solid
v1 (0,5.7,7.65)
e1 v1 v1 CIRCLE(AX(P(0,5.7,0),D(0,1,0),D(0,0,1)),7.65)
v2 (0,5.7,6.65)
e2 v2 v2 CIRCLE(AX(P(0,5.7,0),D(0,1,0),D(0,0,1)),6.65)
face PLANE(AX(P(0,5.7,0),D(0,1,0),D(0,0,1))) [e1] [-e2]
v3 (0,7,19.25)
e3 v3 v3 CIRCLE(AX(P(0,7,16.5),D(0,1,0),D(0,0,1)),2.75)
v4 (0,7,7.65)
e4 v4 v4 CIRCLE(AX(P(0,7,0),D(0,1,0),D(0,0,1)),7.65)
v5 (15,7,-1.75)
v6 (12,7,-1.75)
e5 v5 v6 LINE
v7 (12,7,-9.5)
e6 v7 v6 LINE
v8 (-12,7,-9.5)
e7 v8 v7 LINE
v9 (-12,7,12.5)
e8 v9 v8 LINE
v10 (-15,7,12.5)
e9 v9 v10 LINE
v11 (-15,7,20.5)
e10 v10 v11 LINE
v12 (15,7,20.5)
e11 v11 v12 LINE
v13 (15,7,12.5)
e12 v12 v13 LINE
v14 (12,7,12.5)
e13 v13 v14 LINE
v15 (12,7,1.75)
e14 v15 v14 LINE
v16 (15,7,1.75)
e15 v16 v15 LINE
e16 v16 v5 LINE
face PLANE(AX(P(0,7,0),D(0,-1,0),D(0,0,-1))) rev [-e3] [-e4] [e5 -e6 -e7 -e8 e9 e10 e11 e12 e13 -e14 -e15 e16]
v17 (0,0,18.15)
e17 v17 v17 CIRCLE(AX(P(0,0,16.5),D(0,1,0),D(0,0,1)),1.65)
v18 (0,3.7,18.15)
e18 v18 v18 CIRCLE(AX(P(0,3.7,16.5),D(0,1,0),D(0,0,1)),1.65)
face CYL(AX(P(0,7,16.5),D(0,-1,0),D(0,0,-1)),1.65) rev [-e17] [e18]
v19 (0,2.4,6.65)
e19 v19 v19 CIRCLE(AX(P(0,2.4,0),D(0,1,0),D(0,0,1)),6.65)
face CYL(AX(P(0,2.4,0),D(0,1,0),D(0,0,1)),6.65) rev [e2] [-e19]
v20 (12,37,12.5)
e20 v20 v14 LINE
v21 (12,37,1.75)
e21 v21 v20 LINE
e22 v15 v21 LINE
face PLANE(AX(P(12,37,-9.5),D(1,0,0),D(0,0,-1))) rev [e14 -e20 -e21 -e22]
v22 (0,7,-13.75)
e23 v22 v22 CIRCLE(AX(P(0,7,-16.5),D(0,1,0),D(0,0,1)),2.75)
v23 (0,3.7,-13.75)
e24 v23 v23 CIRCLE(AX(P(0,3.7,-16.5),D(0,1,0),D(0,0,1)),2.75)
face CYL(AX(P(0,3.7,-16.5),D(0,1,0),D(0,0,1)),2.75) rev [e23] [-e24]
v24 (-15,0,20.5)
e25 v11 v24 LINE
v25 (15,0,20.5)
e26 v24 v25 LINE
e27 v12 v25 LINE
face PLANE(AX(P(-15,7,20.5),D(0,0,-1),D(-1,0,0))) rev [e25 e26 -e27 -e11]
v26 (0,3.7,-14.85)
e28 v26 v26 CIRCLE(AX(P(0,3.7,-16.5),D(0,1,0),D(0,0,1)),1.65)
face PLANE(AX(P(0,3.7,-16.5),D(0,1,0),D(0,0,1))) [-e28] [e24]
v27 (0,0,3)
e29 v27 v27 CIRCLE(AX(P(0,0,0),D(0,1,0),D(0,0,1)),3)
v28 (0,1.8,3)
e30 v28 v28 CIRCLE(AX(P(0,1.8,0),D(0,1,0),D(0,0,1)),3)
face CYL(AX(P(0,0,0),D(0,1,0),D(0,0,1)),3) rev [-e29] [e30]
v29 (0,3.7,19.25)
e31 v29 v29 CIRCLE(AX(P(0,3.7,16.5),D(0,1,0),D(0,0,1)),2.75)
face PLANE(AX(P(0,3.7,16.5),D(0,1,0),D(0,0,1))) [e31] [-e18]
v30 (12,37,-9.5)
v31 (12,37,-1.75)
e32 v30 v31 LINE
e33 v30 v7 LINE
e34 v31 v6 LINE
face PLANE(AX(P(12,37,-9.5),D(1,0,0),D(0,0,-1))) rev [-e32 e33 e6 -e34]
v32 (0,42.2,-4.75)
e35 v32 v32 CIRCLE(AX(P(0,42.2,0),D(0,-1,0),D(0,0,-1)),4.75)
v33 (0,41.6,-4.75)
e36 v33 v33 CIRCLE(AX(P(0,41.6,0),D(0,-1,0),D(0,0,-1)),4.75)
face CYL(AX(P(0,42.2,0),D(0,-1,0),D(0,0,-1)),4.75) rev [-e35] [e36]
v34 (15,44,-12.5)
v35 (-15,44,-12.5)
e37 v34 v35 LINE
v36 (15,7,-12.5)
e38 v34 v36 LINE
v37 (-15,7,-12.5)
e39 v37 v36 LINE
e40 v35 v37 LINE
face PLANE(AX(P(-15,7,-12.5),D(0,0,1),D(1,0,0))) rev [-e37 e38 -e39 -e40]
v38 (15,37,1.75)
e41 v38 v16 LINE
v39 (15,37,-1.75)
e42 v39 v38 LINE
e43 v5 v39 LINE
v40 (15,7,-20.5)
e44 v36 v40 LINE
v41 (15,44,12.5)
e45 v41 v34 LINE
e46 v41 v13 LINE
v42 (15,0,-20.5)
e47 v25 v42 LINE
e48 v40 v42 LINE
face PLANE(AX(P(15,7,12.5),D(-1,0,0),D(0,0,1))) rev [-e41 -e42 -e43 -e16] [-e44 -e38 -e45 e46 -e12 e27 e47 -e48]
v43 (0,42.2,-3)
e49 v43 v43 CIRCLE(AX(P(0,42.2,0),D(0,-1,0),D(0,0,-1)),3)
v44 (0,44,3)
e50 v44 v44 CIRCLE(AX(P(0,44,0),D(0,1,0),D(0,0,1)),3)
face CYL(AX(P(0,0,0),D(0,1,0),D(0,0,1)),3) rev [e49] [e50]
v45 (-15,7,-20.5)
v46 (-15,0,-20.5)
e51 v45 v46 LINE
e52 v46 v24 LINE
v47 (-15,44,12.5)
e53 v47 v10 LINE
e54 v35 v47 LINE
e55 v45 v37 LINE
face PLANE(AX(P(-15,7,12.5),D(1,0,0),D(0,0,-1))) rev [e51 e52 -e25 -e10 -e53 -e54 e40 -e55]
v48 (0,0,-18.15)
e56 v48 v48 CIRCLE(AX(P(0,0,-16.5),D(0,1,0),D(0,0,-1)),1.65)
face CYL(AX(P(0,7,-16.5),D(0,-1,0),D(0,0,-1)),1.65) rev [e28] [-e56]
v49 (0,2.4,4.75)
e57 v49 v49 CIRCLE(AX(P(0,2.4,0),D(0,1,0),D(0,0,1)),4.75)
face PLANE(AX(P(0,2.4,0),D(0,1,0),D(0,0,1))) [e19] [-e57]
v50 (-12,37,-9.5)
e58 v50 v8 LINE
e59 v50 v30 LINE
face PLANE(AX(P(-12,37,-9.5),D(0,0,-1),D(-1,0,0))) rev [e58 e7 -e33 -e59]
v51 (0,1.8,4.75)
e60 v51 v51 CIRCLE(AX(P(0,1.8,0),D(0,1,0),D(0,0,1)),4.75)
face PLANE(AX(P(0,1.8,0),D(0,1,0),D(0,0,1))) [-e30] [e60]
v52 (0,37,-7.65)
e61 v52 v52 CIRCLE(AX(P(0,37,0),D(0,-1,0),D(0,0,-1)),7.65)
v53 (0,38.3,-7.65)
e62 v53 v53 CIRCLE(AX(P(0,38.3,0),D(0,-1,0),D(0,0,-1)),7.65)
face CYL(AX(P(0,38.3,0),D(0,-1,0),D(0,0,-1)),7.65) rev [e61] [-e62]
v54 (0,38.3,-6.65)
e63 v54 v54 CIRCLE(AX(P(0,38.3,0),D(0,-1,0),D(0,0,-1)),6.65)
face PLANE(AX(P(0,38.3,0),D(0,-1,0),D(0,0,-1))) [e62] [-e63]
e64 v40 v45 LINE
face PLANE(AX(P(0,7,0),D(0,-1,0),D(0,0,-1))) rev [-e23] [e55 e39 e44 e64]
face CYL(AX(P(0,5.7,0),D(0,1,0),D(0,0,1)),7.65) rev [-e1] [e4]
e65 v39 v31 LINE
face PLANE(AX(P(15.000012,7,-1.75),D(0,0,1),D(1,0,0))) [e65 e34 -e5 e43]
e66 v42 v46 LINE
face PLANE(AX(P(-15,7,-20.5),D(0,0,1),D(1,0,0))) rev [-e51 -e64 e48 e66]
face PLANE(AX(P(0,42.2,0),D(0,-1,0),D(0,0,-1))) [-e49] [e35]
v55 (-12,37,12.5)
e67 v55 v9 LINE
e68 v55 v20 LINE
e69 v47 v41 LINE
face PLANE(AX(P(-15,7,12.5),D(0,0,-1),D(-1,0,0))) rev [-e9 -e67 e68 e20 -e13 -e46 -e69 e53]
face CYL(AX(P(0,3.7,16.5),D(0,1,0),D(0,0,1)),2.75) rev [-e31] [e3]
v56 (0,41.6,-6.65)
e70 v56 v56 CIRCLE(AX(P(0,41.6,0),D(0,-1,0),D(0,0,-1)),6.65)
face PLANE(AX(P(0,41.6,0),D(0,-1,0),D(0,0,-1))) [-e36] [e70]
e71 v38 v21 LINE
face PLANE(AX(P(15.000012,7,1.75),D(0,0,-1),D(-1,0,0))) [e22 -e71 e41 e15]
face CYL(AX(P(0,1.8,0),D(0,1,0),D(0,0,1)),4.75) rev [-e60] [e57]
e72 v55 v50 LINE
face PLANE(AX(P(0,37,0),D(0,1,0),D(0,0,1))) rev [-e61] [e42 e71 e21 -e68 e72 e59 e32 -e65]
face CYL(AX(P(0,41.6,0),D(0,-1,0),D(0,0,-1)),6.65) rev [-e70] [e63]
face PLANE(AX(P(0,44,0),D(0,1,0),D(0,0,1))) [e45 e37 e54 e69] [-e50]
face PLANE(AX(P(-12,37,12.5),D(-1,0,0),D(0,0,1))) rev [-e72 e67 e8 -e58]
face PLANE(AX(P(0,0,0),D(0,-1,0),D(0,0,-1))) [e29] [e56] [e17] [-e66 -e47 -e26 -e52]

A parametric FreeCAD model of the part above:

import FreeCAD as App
import Part
import Sketcher
Q = App.Units.Quantity

doc = App.newDocument("Part")
body = doc.addObject("PartDesign::Body", "Body")

sketch1 = doc.addObject("Sketcher::SketchObject", "Sketch")
body.addObject(sketch1)
sketch1.AttachmentSupport = (doc.XZ_Plane, [""])
sketch1.MapMode = "FlatFace"
sketch1.addGeometry([
    Part.LineSegment(App.Vector(-15, -12, 0), App.Vector(-15, 12, 0)),
    Part.LineSegment(App.Vector(-15, 12, 0), App.Vector(15, 12, 0)),
    Part.LineSegment(App.Vector(15, 12, 0), App.Vector(15, -12, 0)),
    Part.LineSegment(App.Vector(15, -12, 0), App.Vector(-15, -12, 0)),
], False)
sketch1.addConstraint([
    Sketcher.Constraint("Coincident", 0, 2, 1, 1),
    Sketcher.Constraint("Coincident", 1, 2, 2, 1),
    Sketcher.Constraint("Coincident", 2, 2, 3, 1),
    Sketcher.Constraint("Coincident", 3, 2, 0, 1),
    Sketcher.Constraint("Vertical", 0),
    Sketcher.Constraint("Horizontal", 1),
    Sketcher.Constraint("Vertical", 2),
    Sketcher.Constraint("Horizontal", 3),
    Sketcher.Constraint("Symmetric", 0, 2, 2, 2, -1, 1),
    Sketcher.Constraint("DistanceX", 1, 1, 1, 2, Q("30 mm")),
    Sketcher.Constraint("DistanceY", 0, 1, 0, 2, Q("25 mm")),
])
pad1 = doc.addObject("PartDesign::Pad", "Pad")
body.addObject(pad1)
pad1.Profile = sketch1
pad1.Length = 7
pad1.Reversed = True

sketch2 = doc.addObject("Sketcher::SketchObject", "Sketch001")
body.addObject(sketch2)
sketch2.AttachmentSupport = (doc.XZ_Plane, [""])
sketch2.MapMode = "FlatFace"
sketch2.AttachmentOffset = App.Placement(App.Vector(0, 0, -7), App.Rotation())
sketch2.addGeometry([
    Part.LineSegment(App.Vector(-15, 12.5, 0), App.Vector(-12, 12.5, 0)),
    Part.LineSegment(App.Vector(-12, 12.5, 0), App.Vector(-12, -9.5, 0)),
    Part.LineSegment(App.Vector(-12, -9.5, 0), App.Vector(12, -9.5, 0)),
    Part.LineSegment(App.Vector(12, -9.5, 0), App.Vector(12, 12.5, 0)),
    Part.LineSegment(App.Vector(12, 12.5, 0), App.Vector(15, 12.5, 0)),
    Part.LineSegment(App.Vector(15, 12.5, 0), App.Vector(15, -12.5, 0)),
    Part.LineSegment(App.Vector(15, -12.5, 0), App.Vector(-15, -12.5, 0)),
    Part.LineSegment(App.Vector(-15, -12.5, 0), App.Vector(-15, 12.5, 0)),
], False)
sketch2.addConstraint([
    Sketcher.Constraint("Coincident", 0, 2, 1, 1),
    Sketcher.Constraint("Coincident", 1, 2, 2, 1),
    Sketcher.Constraint("Coincident", 2, 2, 3, 1),
    Sketcher.Constraint("Coincident", 3, 2, 4, 1),
    Sketcher.Constraint("Coincident", 4, 2, 5, 1),
    Sketcher.Constraint("Coincident", 5, 2, 6, 1),
    Sketcher.Constraint("Coincident", 6, 2, 7, 1),
    Sketcher.Constraint("Coincident", 7, 2, 0, 1),
    Sketcher.Constraint("Horizontal", 0),
    Sketcher.Constraint("Vertical", 1),
    Sketcher.Constraint("Horizontal", 2),
    Sketcher.Constraint("Vertical", 3),
    Sketcher.Constraint("Horizontal", 4),
    Sketcher.Constraint("Vertical", 5),
    Sketcher.Constraint("Horizontal", 6),
    Sketcher.Constraint("Vertical", 7),
    Sketcher.Constraint("Symmetric", 4, 2, 6, 2, -1, 1),
    Sketcher.Constraint("Symmetric", 0, 2, 3, 2, -2),
    Sketcher.Constraint("DistanceX", 0, 1, 0, 2, Q("3 mm")),
    Sketcher.Constraint("DistanceX", 2, 1, 2, 2, Q("24 mm")),
    Sketcher.Constraint("DistanceY", 1, 2, 1, 1, Q("22 mm")),
    Sketcher.Constraint("DistanceY", 5, 2, 5, 1, Q("25 mm")),
])
pad2 = doc.addObject("PartDesign::Pad", "Pad001")
body.addObject(pad2)
pad2.Profile = sketch2
pad2.Length = 30
pad2.Reversed = True

sketch3 = doc.addObject("Sketcher::SketchObject", "Sketch002")
body.addObject(sketch3)
sketch3.AttachmentSupport = (doc.XZ_Plane, [""])
sketch3.MapMode = "FlatFace"
sketch3.AttachmentOffset = App.Placement(App.Vector(0, 0, -37), App.Rotation())
sketch3.addGeometry([
    Part.LineSegment(App.Vector(-15, -12, 0), App.Vector(-15, 12, 0)),
    Part.LineSegment(App.Vector(-15, 12, 0), App.Vector(15, 12, 0)),
    Part.LineSegment(App.Vector(15, 12, 0), App.Vector(15, -12, 0)),
    Part.LineSegment(App.Vector(15, -12, 0), App.Vector(-15, -12, 0)),
], False)
sketch3.addConstraint([
    Sketcher.Constraint("Coincident", 0, 2, 1, 1),
    Sketcher.Constraint("Coincident", 1, 2, 2, 1),
    Sketcher.Constraint("Coincident", 2, 2, 3, 1),
    Sketcher.Constraint("Coincident", 3, 2, 0, 1),
    Sketcher.Constraint("Vertical", 0),
    Sketcher.Constraint("Horizontal", 1),
    Sketcher.Constraint("Vertical", 2),
    Sketcher.Constraint("Horizontal", 3),
    Sketcher.Constraint("Symmetric", 0, 2, 2, 2, -1, 1),
    Sketcher.Constraint("DistanceX", 1, 1, 1, 2, Q("30 mm")),
    Sketcher.Constraint("DistanceY", 0, 1, 0, 2, Q("25 mm")),
])
pad3 = doc.addObject("PartDesign::Pad", "Pad002")
body.addObject(pad3)
pad3.Profile = sketch3
pad3.Length = 7
pad3.Reversed = True

sketch4 = doc.addObject("Sketcher::SketchObject", "Sketch003")
body.addObject(sketch4)
sketch4.AttachmentSupport = (doc.XZ_Plane, [""])
sketch4.MapMode = "FlatFace"
sketch4.AttachmentOffset = App.Placement(App.Vector(0, 0, -7), App.Rotation())
sketch4.addGeometry(Part.Circle(App.Vector(0, 0, 0), App.Vector(0, 0, 1), 8), False)
sketch4.addConstraint([
    Sketcher.Constraint("Coincident", 0, 3, -1, 1),
    Sketcher.Constraint("Diameter", 0, Q("15.3 mm")),
])
pocket1 = doc.addObject("PartDesign::Pocket", "Pocket")
body.addObject(pocket1)
pocket1.Profile = sketch4
pocket1.Length = 1.3
pocket1.Reversed = True

sketch5 = doc.addObject("Sketcher::SketchObject", "Sketch004")
body.addObject(sketch5)
sketch5.AttachmentSupport = (doc.XZ_Plane, [""])
sketch5.MapMode = "FlatFace"
sketch5.AttachmentOffset = App.Placement(App.Vector(0, 0, -38.3), App.Rotation())
sketch5.addGeometry(Part.Circle(App.Vector(0, 0, 0), App.Vector(0, 0, 1), 8), False)
sketch5.addConstraint([
    Sketcher.Constraint("Coincident", 0, 3, -1, 1),
    Sketcher.Constraint("Diameter", 0, Q("15.3 mm")),
])
pocket2 = doc.addObject("PartDesign::Pocket", "Pocket001")
body.addObject(pocket2)
pocket2.Profile = sketch5
pocket2.Length = 1.3
pocket2.Reversed = True

sketch6 = doc.addObject("Sketcher::SketchObject", "Sketch005")
body.addObject(sketch6)
sketch6.AttachmentSupport = (doc.XZ_Plane, [""])
sketch6.MapMode = "FlatFace"
sketch6.AttachmentOffset = App.Placement(App.Vector(0, 0, -5.7), App.Rotation())
sketch6.addGeometry(Part.Circle(App.Vector(0, 0, 0), App.Vector(0, 0, 1), 7), False)
sketch6.addConstraint([
    Sketcher.Constraint("Coincident", 0, 3, -1, 1),
    Sketcher.Constraint("Diameter", 0, Q("13.3 mm")),
])
pocket3 = doc.addObject("PartDesign::Pocket", "Pocket002")
body.addObject(pocket3)
pocket3.Profile = sketch6
pocket3.Length = 3.3
pocket3.Reversed = True

sketch7 = doc.addObject("Sketcher::SketchObject", "Sketch006")
body.addObject(sketch7)
sketch7.AttachmentSupport = (doc.XZ_Plane, [""])
sketch7.MapMode = "FlatFace"
sketch7.AttachmentOffset = App.Placement(App.Vector(0, 0, -41.6), App.Rotation())
sketch7.addGeometry(Part.Circle(App.Vector(0, 0, 0), App.Vector(0, 0, 1), 7), False)
sketch7.addConstraint([
    Sketcher.Constraint("Coincident", 0, 3, -1, 1),
    Sketcher.Constraint("Diameter", 0, Q("13.3 mm")),
])
pocket4 = doc.addObject("PartDesign::Pocket", "Pocket003")
body.addObject(pocket4)
pocket4.Profile = sketch7
pocket4.Length = 3.3
pocket4.Reversed = True

sketch8 = doc.addObject("Sketcher::SketchObject", "Sketch007")
body.addObject(sketch8)
sketch8.AttachmentSupport = (doc.XZ_Plane, [""])
sketch8.MapMode = "FlatFace"
sketch8.AttachmentOffset = App.Placement(App.Vector(0, 0, -2.4), App.Rotation())
sketch8.addGeometry(Part.Circle(App.Vector(0, 0, 0), App.Vector(0, 0, 1), 4.8), False)
sketch8.addConstraint([
    Sketcher.Constraint("Coincident", 0, 3, -1, 1),
    Sketcher.Constraint("Diameter", 0, Q("9.5 mm")),
])
pocket5 = doc.addObject("PartDesign::Pocket", "Pocket004")
body.addObject(pocket5)
pocket5.Profile = sketch8
pocket5.Length = 0.6
pocket5.Reversed = True

sketch9 = doc.addObject("Sketcher::SketchObject", "Sketch008")
body.addObject(sketch9)
sketch9.AttachmentSupport = (doc.XZ_Plane, [""])
sketch9.MapMode = "FlatFace"
sketch9.AttachmentOffset = App.Placement(App.Vector(0, 0, -42.2), App.Rotation())
sketch9.addGeometry(Part.Circle(App.Vector(0, 0, 0), App.Vector(0, 0, 1), 4.8), False)
sketch9.addConstraint([
    Sketcher.Constraint("Coincident", 0, 3, -1, 1),
    Sketcher.Constraint("Diameter", 0, Q("9.5 mm")),
])
pocket6 = doc.addObject("PartDesign::Pocket", "Pocket005")
body.addObject(pocket6)
pocket6.Profile = sketch9
pocket6.Length = 0.6
pocket6.Reversed = True

sketch10 = doc.addObject("Sketcher::SketchObject", "Sketch009")
body.addObject(sketch10)
sketch10.AttachmentSupport = (doc.XZ_Plane, [""])
sketch10.MapMode = "FlatFace"
sketch10.AttachmentOffset = App.Placement(App.Vector(0, 0, -1.8), App.Rotation())
sketch10.addGeometry(Part.Circle(App.Vector(0, 0, 0), App.Vector(0, 0, 1), 3), False)
sketch10.addConstraint([
    Sketcher.Constraint("Coincident", 0, 3, -1, 1),
    Sketcher.Constraint("Diameter", 0, Q("6 mm")),
])
pocket7 = doc.addObject("PartDesign::Pocket", "Pocket006")
body.addObject(pocket7)
pocket7.Profile = sketch10
pocket7.Type = "ThroughAll"
pocket7.Midplane = True

sketch11 = doc.addObject("Sketcher::SketchObject", "Sketch010")
body.addObject(sketch11)
sketch11.AttachmentSupport = (doc.YZ_Plane, [""])
sketch11.MapMode = "FlatFace"
sketch11.AttachmentOffset = App.Placement(App.Vector(0, 0, 15), App.Rotation())
sketch11.addGeometry([
    Part.LineSegment(App.Vector(37, 1.8, 0), App.Vector(7, 1.8, 0)),
    Part.LineSegment(App.Vector(7, 1.8, 0), App.Vector(7, -1.8, 0)),
    Part.LineSegment(App.Vector(7, -1.8, 0), App.Vector(37, -1.8, 0)),
    Part.LineSegment(App.Vector(37, -1.8, 0), App.Vector(37, 1.8, 0)),
], False)
sketch11.addConstraint([
    Sketcher.Constraint("Coincident", 0, 2, 1, 1),
    Sketcher.Constraint("Coincident", 1, 2, 2, 1),
    Sketcher.Constraint("Coincident", 2, 2, 3, 1),
    Sketcher.Constraint("Coincident", 3, 2, 0, 1),
    Sketcher.Constraint("Horizontal", 0),
    Sketcher.Constraint("Vertical", 1),
    Sketcher.Constraint("Horizontal", 2),
    Sketcher.Constraint("Vertical", 3),
    Sketcher.Constraint("DistanceX", 0, 2, 0, 1, Q("30 mm")),
    Sketcher.Constraint("DistanceY", 1, 2, 1, 1, Q("3.5 mm")),
    Sketcher.Constraint("DistanceX", -1, 1, 0, 2, Q("7 mm")),
    Sketcher.Constraint("DistanceY", -1, 1, 0, 2, Q("1.75 mm")),
])
pocket8 = doc.addObject("PartDesign::Pocket", "Pocket007")
body.addObject(pocket8)
pocket8.Profile = sketch11
pocket8.Type = "TwoLengths"
pocket8.Length = 55.701463
pocket8.Length2 = 10.6
pocket8.Reversed = True

sketch12 = doc.addObject("Sketcher::SketchObject", "Sketch011")
body.addObject(sketch12)
sketch12.AttachmentSupport = (doc.XZ_Plane, [""])
sketch12.MapMode = "FlatFace"
sketch12.addGeometry([
    Part.LineSegment(App.Vector(-15, 12.5, 0), App.Vector(-15, 20.5, 0)),
    Part.LineSegment(App.Vector(-15, 20.5, 0), App.Vector(15, 20.5, 0)),
    Part.LineSegment(App.Vector(15, 20.5, 0), App.Vector(15, 12.5, 0)),
    Part.LineSegment(App.Vector(15, 12.5, 0), App.Vector(-15, 12.5, 0)),
    Part.Circle(App.Vector(0, 16.5, 0), App.Vector(0, 0, 1), 1.6),
    Part.LineSegment(App.Vector(-15, -20.5, 0), App.Vector(-15, -12.5, 0)),
    Part.LineSegment(App.Vector(-15, -12.5, 0), App.Vector(15, -12.5, 0)),
    Part.LineSegment(App.Vector(15, -12.5, 0), App.Vector(15, -20.5, 0)),
    Part.LineSegment(App.Vector(15, -20.5, 0), App.Vector(-15, -20.5, 0)),
    Part.Circle(App.Vector(0, -16.5, 0), App.Vector(0, 0, 1), 1.6),
], False)
sketch12.addConstraint([
    Sketcher.Constraint("Coincident", 0, 2, 1, 1),
    Sketcher.Constraint("Coincident", 1, 2, 2, 1),
    Sketcher.Constraint("Coincident", 2, 2, 3, 1),
    Sketcher.Constraint("Coincident", 3, 2, 0, 1),
    Sketcher.Constraint("Coincident", 5, 2, 6, 1),
    Sketcher.Constraint("Coincident", 6, 2, 7, 1),
    Sketcher.Constraint("Coincident", 7, 2, 8, 1),
    Sketcher.Constraint("Coincident", 8, 2, 5, 1),
    Sketcher.Constraint("Vertical", 0),
    Sketcher.Constraint("Horizontal", 1),
    Sketcher.Constraint("Vertical", 2),
    Sketcher.Constraint("Horizontal", 3),
    Sketcher.Constraint("Vertical", 5),
    Sketcher.Constraint("Horizontal", 6),
    Sketcher.Constraint("Vertical", 7),
    Sketcher.Constraint("Horizontal", 8),
    Sketcher.Constraint("Equal", 4, 9),
    Sketcher.Constraint("Symmetric", 4, 3, 9, 3, -1, 1),
    Sketcher.Constraint("Symmetric", 2, 2, 5, 2, -1, 1),
    Sketcher.Constraint("Symmetric", 0, 2, 7, 2, -1, 1),
    Sketcher.Constraint("PointOnObject", 4, 3, -2),
    Sketcher.Constraint("Vertical", 3, 2, 5, 2),
    Sketcher.Constraint("Diameter", 4, Q("3.3 mm")),
    Sketcher.Constraint("DistanceX", 1, 1, 1, 2, Q("30 mm")),
    Sketcher.Constraint("DistanceY", 0, 1, 0, 2, Q("8 mm")),
    Sketcher.Constraint("DistanceY", 9, 3, 4, 3, Q("33 mm")),
    Sketcher.Constraint("DistanceY", 4, 3, 0, 2, Q("4 mm")),
])
pad4 = doc.addObject("PartDesign::Pad", "Pad003")
body.addObject(pad4)
pad4.Profile = sketch12
pad4.Length = 7
pad4.Reversed = True

sketch13 = doc.addObject("Sketcher::SketchObject", "Sketch012")
body.addObject(sketch13)
sketch13.AttachmentSupport = (doc.XZ_Plane, [""])
sketch13.MapMode = "FlatFace"
sketch13.AttachmentOffset = App.Placement(App.Vector(0, 0, -7), App.Rotation())
sketch13.addGeometry([
    Part.Circle(App.Vector(0, -16.5, 0), App.Vector(0, 0, 1), 2.8),
    Part.Circle(App.Vector(0, 16.5, 0), App.Vector(0, 0, 1), 2.8),
], False)
sketch13.addConstraint([
    Sketcher.Constraint("Equal", 0, 1),
    Sketcher.Constraint("Symmetric", 0, 3, 1, 3, -1, 1),
    Sketcher.Constraint("PointOnObject", 0, 3, -2),
    Sketcher.Constraint("Diameter", 0, Q("5.5 mm")),
    Sketcher.Constraint("DistanceY", 0, 3, 1, 3, Q("33 mm")),
])
pocket9 = doc.addObject("PartDesign::Pocket", "Pocket008")
body.addObject(pocket9)
pocket9.Profile = sketch13
pocket9.Length = 3.3
pocket9.Reversed = True

doc.recompute()
